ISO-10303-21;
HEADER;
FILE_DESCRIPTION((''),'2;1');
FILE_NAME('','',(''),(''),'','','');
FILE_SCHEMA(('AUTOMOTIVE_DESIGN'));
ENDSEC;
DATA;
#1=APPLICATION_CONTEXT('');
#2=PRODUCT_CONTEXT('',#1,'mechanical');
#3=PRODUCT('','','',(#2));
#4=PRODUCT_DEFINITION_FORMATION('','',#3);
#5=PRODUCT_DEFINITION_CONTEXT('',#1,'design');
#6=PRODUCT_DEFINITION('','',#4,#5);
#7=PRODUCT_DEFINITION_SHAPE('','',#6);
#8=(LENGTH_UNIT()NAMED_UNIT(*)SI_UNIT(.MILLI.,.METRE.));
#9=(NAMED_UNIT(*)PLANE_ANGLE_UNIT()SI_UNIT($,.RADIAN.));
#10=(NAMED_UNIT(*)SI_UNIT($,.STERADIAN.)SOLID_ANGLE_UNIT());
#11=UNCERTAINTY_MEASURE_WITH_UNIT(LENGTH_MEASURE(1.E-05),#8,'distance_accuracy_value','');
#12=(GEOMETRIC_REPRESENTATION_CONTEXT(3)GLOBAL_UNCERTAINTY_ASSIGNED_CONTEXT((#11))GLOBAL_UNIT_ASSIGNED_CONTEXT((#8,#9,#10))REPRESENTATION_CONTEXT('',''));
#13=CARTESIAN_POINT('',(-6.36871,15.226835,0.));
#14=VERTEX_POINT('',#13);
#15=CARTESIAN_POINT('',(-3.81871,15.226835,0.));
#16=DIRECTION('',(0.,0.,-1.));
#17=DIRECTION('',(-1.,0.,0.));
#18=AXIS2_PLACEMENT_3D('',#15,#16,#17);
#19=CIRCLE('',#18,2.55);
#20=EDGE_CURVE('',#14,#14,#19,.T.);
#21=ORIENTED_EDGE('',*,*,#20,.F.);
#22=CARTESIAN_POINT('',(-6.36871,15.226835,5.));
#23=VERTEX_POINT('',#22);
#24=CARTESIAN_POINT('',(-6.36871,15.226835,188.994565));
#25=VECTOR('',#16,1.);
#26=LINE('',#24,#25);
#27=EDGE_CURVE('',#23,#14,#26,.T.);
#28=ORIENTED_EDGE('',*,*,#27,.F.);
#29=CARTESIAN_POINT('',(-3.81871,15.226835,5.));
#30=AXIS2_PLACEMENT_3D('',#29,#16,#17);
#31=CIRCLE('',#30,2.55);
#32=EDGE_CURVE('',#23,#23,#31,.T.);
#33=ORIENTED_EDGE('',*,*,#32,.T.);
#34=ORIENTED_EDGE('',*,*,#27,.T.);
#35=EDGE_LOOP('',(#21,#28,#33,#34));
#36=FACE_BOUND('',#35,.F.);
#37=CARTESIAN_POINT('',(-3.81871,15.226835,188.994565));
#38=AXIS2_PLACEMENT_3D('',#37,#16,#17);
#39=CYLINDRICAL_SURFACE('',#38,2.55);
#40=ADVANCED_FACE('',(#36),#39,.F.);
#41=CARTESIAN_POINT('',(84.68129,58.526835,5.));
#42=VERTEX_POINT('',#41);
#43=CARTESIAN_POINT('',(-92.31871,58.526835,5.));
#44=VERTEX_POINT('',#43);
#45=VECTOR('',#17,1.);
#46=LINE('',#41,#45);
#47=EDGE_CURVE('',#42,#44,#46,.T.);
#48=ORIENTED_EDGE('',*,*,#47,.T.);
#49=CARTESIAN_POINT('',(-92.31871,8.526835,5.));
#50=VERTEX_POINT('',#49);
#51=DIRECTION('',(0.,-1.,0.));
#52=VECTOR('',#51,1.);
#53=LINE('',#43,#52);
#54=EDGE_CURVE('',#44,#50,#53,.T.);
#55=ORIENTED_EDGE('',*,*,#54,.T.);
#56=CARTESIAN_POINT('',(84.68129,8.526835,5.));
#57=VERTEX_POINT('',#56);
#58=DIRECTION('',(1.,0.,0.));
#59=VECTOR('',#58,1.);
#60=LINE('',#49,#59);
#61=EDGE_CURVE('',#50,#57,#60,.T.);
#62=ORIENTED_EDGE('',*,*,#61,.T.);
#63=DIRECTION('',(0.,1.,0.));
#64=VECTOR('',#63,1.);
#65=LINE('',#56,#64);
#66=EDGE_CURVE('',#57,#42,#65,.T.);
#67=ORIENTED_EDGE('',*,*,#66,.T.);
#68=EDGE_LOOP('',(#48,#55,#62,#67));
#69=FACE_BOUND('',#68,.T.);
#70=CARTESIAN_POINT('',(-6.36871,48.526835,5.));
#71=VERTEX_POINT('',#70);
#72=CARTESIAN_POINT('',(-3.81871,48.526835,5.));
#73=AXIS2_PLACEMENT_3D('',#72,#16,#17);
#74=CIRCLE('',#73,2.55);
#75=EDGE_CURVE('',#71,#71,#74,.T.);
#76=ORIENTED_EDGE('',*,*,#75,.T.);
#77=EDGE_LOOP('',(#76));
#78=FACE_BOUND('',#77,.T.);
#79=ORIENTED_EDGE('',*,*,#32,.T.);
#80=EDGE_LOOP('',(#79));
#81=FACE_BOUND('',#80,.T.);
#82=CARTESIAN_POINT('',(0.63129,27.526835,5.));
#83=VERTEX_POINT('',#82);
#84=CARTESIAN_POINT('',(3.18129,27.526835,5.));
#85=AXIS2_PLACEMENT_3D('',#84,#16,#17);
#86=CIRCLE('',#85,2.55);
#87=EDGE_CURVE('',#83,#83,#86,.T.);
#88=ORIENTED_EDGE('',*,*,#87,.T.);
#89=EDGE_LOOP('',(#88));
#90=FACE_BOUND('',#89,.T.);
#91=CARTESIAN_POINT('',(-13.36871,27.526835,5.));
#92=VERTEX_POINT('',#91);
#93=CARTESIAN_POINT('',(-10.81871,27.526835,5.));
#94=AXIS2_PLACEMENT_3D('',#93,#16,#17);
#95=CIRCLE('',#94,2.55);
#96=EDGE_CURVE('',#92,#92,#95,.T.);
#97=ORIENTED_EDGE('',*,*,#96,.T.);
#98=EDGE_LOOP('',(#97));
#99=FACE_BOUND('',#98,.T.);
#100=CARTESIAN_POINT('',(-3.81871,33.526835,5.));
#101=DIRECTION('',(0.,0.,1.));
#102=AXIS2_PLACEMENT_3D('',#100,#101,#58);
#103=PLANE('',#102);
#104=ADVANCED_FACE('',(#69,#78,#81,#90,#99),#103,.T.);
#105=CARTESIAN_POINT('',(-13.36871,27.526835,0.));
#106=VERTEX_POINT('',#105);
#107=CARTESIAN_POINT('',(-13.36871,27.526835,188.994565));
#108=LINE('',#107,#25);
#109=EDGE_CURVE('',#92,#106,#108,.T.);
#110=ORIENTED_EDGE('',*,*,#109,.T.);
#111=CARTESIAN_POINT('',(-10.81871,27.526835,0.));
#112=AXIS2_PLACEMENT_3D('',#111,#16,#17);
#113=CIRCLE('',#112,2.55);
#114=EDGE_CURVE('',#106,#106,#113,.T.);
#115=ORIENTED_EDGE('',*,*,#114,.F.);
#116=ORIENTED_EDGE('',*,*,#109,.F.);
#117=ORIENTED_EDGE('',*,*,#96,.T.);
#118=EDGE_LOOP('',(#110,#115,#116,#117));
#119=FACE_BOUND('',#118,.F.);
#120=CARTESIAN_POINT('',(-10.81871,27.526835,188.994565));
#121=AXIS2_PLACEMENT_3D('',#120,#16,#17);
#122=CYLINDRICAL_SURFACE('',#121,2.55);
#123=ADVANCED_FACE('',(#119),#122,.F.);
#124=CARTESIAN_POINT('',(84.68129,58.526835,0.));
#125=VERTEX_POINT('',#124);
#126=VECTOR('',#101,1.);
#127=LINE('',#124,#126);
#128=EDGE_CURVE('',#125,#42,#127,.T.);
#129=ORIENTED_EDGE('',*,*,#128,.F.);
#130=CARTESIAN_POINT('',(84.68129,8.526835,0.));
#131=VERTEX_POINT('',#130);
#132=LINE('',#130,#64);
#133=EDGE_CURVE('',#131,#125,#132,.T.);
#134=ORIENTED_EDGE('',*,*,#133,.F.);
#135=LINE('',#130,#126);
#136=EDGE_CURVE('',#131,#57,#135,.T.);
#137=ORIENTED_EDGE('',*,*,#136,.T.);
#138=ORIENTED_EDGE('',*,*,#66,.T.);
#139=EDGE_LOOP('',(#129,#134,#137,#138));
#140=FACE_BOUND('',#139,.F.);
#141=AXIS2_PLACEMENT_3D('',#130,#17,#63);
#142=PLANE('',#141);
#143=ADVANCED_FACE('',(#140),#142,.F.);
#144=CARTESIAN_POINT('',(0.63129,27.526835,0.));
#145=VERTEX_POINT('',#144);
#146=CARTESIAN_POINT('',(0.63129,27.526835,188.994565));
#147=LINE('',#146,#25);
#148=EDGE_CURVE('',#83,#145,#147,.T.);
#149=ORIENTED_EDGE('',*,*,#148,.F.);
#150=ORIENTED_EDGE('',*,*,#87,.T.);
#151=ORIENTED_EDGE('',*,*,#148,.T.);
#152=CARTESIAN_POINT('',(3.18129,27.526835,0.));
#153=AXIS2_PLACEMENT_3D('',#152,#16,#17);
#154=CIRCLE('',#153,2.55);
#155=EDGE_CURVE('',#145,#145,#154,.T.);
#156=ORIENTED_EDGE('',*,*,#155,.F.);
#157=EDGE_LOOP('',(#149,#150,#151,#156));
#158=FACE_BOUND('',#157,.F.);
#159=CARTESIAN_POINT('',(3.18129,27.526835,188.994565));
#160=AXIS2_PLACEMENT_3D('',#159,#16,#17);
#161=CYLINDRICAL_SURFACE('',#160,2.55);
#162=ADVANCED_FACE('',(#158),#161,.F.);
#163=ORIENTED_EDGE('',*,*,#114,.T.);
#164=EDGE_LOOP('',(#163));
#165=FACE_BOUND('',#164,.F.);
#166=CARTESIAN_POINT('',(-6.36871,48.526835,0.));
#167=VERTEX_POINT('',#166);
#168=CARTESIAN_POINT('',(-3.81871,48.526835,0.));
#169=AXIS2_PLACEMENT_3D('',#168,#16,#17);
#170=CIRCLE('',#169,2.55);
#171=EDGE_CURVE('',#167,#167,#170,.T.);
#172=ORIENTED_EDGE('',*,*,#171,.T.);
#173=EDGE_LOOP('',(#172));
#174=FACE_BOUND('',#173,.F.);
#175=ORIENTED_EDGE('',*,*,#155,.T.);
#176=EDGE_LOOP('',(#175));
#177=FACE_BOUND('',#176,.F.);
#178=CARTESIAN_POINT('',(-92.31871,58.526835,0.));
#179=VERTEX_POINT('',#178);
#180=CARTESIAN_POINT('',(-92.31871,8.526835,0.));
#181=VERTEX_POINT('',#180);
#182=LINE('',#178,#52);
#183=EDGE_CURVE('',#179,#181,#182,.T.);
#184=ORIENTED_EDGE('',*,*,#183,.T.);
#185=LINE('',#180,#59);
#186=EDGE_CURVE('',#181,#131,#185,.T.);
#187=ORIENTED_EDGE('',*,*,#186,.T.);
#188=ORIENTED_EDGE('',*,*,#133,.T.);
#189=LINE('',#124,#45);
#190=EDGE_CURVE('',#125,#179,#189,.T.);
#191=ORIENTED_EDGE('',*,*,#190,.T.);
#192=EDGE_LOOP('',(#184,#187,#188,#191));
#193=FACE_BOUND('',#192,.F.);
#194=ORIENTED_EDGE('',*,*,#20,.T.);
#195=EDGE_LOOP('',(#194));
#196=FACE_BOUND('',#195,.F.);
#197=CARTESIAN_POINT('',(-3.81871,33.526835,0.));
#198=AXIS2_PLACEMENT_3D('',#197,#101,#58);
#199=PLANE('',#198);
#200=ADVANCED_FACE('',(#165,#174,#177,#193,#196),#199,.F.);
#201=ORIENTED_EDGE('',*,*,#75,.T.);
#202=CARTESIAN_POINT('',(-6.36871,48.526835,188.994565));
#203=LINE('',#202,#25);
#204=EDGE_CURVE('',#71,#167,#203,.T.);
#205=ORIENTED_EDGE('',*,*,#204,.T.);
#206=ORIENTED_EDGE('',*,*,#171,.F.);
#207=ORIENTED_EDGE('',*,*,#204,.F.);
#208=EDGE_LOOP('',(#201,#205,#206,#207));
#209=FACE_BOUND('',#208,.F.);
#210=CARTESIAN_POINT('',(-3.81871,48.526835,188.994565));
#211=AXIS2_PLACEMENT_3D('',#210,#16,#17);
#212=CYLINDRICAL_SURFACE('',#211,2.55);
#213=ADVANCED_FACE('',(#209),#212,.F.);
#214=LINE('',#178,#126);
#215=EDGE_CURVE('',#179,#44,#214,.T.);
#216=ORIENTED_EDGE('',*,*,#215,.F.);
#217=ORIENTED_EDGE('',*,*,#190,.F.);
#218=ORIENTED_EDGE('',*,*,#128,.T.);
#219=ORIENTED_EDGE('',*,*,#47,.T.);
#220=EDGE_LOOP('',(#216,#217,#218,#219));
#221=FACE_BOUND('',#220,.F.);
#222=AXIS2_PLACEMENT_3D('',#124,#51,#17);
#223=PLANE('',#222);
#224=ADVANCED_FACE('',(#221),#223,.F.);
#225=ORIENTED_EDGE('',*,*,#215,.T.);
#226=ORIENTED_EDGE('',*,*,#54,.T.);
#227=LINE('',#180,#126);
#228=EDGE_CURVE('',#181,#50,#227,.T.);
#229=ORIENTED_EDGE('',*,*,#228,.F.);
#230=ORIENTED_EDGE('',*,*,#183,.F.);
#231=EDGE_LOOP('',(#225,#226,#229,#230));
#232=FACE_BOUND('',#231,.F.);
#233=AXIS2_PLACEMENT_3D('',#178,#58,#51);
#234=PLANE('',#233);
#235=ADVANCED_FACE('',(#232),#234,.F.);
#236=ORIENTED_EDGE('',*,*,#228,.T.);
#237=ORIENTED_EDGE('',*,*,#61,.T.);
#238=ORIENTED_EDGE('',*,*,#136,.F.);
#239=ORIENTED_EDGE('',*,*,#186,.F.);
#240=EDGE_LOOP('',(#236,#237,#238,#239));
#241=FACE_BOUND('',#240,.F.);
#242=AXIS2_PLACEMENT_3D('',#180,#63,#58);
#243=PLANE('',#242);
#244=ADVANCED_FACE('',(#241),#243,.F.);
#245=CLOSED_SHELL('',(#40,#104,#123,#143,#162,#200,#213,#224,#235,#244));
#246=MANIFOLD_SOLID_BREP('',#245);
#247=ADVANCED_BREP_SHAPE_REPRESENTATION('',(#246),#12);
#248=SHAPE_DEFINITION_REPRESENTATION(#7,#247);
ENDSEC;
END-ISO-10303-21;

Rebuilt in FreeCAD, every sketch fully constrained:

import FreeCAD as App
import Part
import Sketcher
from FreeCAD import Vector


def add_polygon(sketch, points):
    """Adds a closed chain of lines whose ends are joined by coincident constraints."""
    first, n = sketch.GeometryCount, len(points)
    for a, b in zip(points, points[1:] + points[:1]):
        sketch.addGeometry(Part.LineSegment(App.Vector(*a, 0), App.Vector(*b, 0)), False)
    for i in range(n):
        sketch.addConstraint(Sketcher.Constraint("Coincident", first + i, 2, first + (i + 1) % n, 1))

doc = App.newDocument("Part")
params = doc.addObject("Spreadsheet::Sheet", "Params")
for row, (alias, value) in enumerate([
    ("sketch1_width", "177 mm"),
    ("sketch1_height", "50 mm"),
    ("pad1_length", "5 mm"),
    ("sketch2_diameter", "5.1 mm"),
    ("hole_diameter", "5.1 mm"),
    ("sketch3_diameter", "4.2 mm"),
    ("pocket1_length", "25 mm"),
], start=1):
    params.set(f"A{row}", alias)
    params.set(f"B{row}", "=" + value)
    params.setAlias(f"B{row}", alias)

body = doc.addObject("PartDesign::Body", "Body")

# Sketch on XY plane
sketch1 = doc.addObject("Sketcher::SketchObject", "Sketch")
body.addObject(sketch1)
sketch1.AttachmentSupport = (doc.XY_Plane, [""])
sketch1.MapMode = "FlatFace"
add_polygon(sketch1, [(85, 59), (-92, 59), (-92, 9), (85, 9)])  # lines 0-3
sketch1.addConstraint([
    Sketcher.Constraint("Horizontal", 0),
    Sketcher.Constraint("Vertical", 1),
    Sketcher.Constraint("Horizontal", 2),
    Sketcher.Constraint("Vertical", 3),
    Sketcher.Constraint("DistanceX", 0, 2, 0, 1, 177.0),
    Sketcher.Constraint("DistanceY", 1, 2, 1, 1, 50.0),
    Sketcher.Constraint("DistanceX", 0, 2, -1, 1, 92.31871),
    Sketcher.Constraint("DistanceY", -1, 1, 0, 2, 58.526835),
])
sketch1.setExpression("Constraints[8]", "Params.sketch1_width")
sketch1.setExpression("Constraints[9]", "Params.sketch1_height")
pad1 = doc.addObject("PartDesign::Pad", "Pad")
body.addObject(pad1)
pad1.Profile = sketch1
pad1.setExpression("Length", "Params.pad1_length")

# Sketch on XY plane
sketch2 = doc.addObject("Sketcher::SketchObject", "Sketch001")
body.addObject(sketch2)
sketch2.AttachmentSupport = (doc.XY_Plane, [""])
sketch2.MapMode = "FlatFace"
sketch2.AttachmentOffset = App.Placement(Vector(0, 0, 5), App.Rotation())
sketch2.addGeometry([
    Part.Circle(Vector(-10.8, 27.5, 0), Vector(0, 0, 1), 2.5),
    Part.Circle(Vector(-3.8, 48.5, 0), Vector(0, 0, 1), 2.5),
    Part.Circle(Vector(3.2, 27.5, 0), Vector(0, 0, 1), 2.5),
    Part.Circle(Vector(-3.8, 15.2, 0), Vector(0, 0, 1), 2.5),
], False)
sketch2.addConstraint([
    Sketcher.Constraint("Equal", 0, 1),
    Sketcher.Constraint("Equal", 1, 2),
    Sketcher.Constraint("Equal", 2, 3),
    Sketcher.Constraint("Horizontal", 0, 3, 2, 3),
    Sketcher.Constraint("Vertical", 1, 3, 3, 3),
    Sketcher.Constraint("Diameter", 0, 5.1),
    Sketcher.Constraint("DistanceX", 0, 3, 1, 3, 7.0),
    Sketcher.Constraint("DistanceY", 0, 3, 1, 3, 21.0),
    Sketcher.Constraint("DistanceX", 0, 3, 2, 3, 14.0),
    Sketcher.Constraint("DistanceY", 3, 3, 0, 3, 12.3),
    Sketcher.Constraint("DistanceX", 0, 3, -1, 1, 10.81871),
    Sketcher.Constraint("DistanceY", -1, 1, 0, 3, 27.526835),
])
sketch2.setExpression("Constraints[5]", "Params.sketch2_diameter")
doc.recompute()
hole = doc.addObject("PartDesign::Hole", "Hole")
body.addObject(hole)
hole.Profile = sketch2
hole.ThreadType = "None"
hole.setExpression("Diameter", "Params.hole_diameter")
hole.DepthType = "ThroughAll"

# Sketch on XY plane
sketch3 = doc.addObject("Sketcher::SketchObject", "Sketch002")
body.addObject(sketch3)
sketch3.AttachmentSupport = (doc.XY_Plane, [""])
sketch3.MapMode = "FlatFace"
sketch3.AttachmentOffset = App.Placement(Vector(0, 0, 5), App.Rotation())
sketch3.addGeometry([
    Part.Circle(Vector(-63.3, -6.5, 0), Vector(0, 0, 1), 2.1),  # 0
    Part.Circle(Vector(55.7, -14.5, 0), Vector(0, 0, 1), 2.1),  # 1
    Part.Circle(Vector(-83.3, -14.5, 0), Vector(0, 0, 1), 2.1),  # 2
    Part.Circle(Vector(-73.3, -44, 0), Vector(0, 0, 1), 2.1),  # 3
    Part.Circle(Vector(75.7, -6.5, 0), Vector(0, 0, 1), 2.1),  # 4
    Part.Circle(Vector(65.7, -44, 0), Vector(0, 0, 1), 2.1),  # 5
], False)
sketch3.addConstraint([
    Sketcher.Constraint("Equal", 0, 1),
    Sketcher.Constraint("Equal", 1, 2),
    Sketcher.Constraint("Equal", 2, 3),
    Sketcher.Constraint("Equal", 3, 4),
    Sketcher.Constraint("Equal", 4, 5),
    Sketcher.Constraint("Horizontal", 1, 3, 2, 3),
    Sketcher.Constraint("Horizontal", 0, 3, 4, 3),
    Sketcher.Constraint("Horizontal", 3, 3, 5, 3),
    Sketcher.Constraint("Diameter", 0, 4.2),
    Sketcher.Constraint("DistanceX", 0, 3, 1, 3, 119.0),
    Sketcher.Constraint("DistanceY", 1, 3, 0, 3, 8.0),
    Sketcher.Constraint("DistanceX", 2, 3, 0, 3, 20.0),
    Sketcher.Constraint("DistanceX", 2, 3, 3, 3, 10.0),
    Sketcher.Constraint("DistanceX", 1, 3, 4, 3, 20.0),
    Sketcher.Constraint("DistanceX", 1, 3, 5, 3, 10.0),
    Sketcher.Constraint("DistanceY", 3, 3, 2, 3, 29.5),
    Sketcher.Constraint("DistanceX", 0, 3, -1, 1, 63.31871),
    Sketcher.Constraint("DistanceY", 0, 3, -1, 1, 6.473165),
])
sketch3.setExpression("Constraints[8]", "Params.sketch3_diameter")
pocket1 = doc.addObject("PartDesign::Pocket", "Pocket")
body.addObject(pocket1)
pocket1.Profile = sketch3
pocket1.setExpression("Length", "Params.pocket1_length")

doc.recompute()
